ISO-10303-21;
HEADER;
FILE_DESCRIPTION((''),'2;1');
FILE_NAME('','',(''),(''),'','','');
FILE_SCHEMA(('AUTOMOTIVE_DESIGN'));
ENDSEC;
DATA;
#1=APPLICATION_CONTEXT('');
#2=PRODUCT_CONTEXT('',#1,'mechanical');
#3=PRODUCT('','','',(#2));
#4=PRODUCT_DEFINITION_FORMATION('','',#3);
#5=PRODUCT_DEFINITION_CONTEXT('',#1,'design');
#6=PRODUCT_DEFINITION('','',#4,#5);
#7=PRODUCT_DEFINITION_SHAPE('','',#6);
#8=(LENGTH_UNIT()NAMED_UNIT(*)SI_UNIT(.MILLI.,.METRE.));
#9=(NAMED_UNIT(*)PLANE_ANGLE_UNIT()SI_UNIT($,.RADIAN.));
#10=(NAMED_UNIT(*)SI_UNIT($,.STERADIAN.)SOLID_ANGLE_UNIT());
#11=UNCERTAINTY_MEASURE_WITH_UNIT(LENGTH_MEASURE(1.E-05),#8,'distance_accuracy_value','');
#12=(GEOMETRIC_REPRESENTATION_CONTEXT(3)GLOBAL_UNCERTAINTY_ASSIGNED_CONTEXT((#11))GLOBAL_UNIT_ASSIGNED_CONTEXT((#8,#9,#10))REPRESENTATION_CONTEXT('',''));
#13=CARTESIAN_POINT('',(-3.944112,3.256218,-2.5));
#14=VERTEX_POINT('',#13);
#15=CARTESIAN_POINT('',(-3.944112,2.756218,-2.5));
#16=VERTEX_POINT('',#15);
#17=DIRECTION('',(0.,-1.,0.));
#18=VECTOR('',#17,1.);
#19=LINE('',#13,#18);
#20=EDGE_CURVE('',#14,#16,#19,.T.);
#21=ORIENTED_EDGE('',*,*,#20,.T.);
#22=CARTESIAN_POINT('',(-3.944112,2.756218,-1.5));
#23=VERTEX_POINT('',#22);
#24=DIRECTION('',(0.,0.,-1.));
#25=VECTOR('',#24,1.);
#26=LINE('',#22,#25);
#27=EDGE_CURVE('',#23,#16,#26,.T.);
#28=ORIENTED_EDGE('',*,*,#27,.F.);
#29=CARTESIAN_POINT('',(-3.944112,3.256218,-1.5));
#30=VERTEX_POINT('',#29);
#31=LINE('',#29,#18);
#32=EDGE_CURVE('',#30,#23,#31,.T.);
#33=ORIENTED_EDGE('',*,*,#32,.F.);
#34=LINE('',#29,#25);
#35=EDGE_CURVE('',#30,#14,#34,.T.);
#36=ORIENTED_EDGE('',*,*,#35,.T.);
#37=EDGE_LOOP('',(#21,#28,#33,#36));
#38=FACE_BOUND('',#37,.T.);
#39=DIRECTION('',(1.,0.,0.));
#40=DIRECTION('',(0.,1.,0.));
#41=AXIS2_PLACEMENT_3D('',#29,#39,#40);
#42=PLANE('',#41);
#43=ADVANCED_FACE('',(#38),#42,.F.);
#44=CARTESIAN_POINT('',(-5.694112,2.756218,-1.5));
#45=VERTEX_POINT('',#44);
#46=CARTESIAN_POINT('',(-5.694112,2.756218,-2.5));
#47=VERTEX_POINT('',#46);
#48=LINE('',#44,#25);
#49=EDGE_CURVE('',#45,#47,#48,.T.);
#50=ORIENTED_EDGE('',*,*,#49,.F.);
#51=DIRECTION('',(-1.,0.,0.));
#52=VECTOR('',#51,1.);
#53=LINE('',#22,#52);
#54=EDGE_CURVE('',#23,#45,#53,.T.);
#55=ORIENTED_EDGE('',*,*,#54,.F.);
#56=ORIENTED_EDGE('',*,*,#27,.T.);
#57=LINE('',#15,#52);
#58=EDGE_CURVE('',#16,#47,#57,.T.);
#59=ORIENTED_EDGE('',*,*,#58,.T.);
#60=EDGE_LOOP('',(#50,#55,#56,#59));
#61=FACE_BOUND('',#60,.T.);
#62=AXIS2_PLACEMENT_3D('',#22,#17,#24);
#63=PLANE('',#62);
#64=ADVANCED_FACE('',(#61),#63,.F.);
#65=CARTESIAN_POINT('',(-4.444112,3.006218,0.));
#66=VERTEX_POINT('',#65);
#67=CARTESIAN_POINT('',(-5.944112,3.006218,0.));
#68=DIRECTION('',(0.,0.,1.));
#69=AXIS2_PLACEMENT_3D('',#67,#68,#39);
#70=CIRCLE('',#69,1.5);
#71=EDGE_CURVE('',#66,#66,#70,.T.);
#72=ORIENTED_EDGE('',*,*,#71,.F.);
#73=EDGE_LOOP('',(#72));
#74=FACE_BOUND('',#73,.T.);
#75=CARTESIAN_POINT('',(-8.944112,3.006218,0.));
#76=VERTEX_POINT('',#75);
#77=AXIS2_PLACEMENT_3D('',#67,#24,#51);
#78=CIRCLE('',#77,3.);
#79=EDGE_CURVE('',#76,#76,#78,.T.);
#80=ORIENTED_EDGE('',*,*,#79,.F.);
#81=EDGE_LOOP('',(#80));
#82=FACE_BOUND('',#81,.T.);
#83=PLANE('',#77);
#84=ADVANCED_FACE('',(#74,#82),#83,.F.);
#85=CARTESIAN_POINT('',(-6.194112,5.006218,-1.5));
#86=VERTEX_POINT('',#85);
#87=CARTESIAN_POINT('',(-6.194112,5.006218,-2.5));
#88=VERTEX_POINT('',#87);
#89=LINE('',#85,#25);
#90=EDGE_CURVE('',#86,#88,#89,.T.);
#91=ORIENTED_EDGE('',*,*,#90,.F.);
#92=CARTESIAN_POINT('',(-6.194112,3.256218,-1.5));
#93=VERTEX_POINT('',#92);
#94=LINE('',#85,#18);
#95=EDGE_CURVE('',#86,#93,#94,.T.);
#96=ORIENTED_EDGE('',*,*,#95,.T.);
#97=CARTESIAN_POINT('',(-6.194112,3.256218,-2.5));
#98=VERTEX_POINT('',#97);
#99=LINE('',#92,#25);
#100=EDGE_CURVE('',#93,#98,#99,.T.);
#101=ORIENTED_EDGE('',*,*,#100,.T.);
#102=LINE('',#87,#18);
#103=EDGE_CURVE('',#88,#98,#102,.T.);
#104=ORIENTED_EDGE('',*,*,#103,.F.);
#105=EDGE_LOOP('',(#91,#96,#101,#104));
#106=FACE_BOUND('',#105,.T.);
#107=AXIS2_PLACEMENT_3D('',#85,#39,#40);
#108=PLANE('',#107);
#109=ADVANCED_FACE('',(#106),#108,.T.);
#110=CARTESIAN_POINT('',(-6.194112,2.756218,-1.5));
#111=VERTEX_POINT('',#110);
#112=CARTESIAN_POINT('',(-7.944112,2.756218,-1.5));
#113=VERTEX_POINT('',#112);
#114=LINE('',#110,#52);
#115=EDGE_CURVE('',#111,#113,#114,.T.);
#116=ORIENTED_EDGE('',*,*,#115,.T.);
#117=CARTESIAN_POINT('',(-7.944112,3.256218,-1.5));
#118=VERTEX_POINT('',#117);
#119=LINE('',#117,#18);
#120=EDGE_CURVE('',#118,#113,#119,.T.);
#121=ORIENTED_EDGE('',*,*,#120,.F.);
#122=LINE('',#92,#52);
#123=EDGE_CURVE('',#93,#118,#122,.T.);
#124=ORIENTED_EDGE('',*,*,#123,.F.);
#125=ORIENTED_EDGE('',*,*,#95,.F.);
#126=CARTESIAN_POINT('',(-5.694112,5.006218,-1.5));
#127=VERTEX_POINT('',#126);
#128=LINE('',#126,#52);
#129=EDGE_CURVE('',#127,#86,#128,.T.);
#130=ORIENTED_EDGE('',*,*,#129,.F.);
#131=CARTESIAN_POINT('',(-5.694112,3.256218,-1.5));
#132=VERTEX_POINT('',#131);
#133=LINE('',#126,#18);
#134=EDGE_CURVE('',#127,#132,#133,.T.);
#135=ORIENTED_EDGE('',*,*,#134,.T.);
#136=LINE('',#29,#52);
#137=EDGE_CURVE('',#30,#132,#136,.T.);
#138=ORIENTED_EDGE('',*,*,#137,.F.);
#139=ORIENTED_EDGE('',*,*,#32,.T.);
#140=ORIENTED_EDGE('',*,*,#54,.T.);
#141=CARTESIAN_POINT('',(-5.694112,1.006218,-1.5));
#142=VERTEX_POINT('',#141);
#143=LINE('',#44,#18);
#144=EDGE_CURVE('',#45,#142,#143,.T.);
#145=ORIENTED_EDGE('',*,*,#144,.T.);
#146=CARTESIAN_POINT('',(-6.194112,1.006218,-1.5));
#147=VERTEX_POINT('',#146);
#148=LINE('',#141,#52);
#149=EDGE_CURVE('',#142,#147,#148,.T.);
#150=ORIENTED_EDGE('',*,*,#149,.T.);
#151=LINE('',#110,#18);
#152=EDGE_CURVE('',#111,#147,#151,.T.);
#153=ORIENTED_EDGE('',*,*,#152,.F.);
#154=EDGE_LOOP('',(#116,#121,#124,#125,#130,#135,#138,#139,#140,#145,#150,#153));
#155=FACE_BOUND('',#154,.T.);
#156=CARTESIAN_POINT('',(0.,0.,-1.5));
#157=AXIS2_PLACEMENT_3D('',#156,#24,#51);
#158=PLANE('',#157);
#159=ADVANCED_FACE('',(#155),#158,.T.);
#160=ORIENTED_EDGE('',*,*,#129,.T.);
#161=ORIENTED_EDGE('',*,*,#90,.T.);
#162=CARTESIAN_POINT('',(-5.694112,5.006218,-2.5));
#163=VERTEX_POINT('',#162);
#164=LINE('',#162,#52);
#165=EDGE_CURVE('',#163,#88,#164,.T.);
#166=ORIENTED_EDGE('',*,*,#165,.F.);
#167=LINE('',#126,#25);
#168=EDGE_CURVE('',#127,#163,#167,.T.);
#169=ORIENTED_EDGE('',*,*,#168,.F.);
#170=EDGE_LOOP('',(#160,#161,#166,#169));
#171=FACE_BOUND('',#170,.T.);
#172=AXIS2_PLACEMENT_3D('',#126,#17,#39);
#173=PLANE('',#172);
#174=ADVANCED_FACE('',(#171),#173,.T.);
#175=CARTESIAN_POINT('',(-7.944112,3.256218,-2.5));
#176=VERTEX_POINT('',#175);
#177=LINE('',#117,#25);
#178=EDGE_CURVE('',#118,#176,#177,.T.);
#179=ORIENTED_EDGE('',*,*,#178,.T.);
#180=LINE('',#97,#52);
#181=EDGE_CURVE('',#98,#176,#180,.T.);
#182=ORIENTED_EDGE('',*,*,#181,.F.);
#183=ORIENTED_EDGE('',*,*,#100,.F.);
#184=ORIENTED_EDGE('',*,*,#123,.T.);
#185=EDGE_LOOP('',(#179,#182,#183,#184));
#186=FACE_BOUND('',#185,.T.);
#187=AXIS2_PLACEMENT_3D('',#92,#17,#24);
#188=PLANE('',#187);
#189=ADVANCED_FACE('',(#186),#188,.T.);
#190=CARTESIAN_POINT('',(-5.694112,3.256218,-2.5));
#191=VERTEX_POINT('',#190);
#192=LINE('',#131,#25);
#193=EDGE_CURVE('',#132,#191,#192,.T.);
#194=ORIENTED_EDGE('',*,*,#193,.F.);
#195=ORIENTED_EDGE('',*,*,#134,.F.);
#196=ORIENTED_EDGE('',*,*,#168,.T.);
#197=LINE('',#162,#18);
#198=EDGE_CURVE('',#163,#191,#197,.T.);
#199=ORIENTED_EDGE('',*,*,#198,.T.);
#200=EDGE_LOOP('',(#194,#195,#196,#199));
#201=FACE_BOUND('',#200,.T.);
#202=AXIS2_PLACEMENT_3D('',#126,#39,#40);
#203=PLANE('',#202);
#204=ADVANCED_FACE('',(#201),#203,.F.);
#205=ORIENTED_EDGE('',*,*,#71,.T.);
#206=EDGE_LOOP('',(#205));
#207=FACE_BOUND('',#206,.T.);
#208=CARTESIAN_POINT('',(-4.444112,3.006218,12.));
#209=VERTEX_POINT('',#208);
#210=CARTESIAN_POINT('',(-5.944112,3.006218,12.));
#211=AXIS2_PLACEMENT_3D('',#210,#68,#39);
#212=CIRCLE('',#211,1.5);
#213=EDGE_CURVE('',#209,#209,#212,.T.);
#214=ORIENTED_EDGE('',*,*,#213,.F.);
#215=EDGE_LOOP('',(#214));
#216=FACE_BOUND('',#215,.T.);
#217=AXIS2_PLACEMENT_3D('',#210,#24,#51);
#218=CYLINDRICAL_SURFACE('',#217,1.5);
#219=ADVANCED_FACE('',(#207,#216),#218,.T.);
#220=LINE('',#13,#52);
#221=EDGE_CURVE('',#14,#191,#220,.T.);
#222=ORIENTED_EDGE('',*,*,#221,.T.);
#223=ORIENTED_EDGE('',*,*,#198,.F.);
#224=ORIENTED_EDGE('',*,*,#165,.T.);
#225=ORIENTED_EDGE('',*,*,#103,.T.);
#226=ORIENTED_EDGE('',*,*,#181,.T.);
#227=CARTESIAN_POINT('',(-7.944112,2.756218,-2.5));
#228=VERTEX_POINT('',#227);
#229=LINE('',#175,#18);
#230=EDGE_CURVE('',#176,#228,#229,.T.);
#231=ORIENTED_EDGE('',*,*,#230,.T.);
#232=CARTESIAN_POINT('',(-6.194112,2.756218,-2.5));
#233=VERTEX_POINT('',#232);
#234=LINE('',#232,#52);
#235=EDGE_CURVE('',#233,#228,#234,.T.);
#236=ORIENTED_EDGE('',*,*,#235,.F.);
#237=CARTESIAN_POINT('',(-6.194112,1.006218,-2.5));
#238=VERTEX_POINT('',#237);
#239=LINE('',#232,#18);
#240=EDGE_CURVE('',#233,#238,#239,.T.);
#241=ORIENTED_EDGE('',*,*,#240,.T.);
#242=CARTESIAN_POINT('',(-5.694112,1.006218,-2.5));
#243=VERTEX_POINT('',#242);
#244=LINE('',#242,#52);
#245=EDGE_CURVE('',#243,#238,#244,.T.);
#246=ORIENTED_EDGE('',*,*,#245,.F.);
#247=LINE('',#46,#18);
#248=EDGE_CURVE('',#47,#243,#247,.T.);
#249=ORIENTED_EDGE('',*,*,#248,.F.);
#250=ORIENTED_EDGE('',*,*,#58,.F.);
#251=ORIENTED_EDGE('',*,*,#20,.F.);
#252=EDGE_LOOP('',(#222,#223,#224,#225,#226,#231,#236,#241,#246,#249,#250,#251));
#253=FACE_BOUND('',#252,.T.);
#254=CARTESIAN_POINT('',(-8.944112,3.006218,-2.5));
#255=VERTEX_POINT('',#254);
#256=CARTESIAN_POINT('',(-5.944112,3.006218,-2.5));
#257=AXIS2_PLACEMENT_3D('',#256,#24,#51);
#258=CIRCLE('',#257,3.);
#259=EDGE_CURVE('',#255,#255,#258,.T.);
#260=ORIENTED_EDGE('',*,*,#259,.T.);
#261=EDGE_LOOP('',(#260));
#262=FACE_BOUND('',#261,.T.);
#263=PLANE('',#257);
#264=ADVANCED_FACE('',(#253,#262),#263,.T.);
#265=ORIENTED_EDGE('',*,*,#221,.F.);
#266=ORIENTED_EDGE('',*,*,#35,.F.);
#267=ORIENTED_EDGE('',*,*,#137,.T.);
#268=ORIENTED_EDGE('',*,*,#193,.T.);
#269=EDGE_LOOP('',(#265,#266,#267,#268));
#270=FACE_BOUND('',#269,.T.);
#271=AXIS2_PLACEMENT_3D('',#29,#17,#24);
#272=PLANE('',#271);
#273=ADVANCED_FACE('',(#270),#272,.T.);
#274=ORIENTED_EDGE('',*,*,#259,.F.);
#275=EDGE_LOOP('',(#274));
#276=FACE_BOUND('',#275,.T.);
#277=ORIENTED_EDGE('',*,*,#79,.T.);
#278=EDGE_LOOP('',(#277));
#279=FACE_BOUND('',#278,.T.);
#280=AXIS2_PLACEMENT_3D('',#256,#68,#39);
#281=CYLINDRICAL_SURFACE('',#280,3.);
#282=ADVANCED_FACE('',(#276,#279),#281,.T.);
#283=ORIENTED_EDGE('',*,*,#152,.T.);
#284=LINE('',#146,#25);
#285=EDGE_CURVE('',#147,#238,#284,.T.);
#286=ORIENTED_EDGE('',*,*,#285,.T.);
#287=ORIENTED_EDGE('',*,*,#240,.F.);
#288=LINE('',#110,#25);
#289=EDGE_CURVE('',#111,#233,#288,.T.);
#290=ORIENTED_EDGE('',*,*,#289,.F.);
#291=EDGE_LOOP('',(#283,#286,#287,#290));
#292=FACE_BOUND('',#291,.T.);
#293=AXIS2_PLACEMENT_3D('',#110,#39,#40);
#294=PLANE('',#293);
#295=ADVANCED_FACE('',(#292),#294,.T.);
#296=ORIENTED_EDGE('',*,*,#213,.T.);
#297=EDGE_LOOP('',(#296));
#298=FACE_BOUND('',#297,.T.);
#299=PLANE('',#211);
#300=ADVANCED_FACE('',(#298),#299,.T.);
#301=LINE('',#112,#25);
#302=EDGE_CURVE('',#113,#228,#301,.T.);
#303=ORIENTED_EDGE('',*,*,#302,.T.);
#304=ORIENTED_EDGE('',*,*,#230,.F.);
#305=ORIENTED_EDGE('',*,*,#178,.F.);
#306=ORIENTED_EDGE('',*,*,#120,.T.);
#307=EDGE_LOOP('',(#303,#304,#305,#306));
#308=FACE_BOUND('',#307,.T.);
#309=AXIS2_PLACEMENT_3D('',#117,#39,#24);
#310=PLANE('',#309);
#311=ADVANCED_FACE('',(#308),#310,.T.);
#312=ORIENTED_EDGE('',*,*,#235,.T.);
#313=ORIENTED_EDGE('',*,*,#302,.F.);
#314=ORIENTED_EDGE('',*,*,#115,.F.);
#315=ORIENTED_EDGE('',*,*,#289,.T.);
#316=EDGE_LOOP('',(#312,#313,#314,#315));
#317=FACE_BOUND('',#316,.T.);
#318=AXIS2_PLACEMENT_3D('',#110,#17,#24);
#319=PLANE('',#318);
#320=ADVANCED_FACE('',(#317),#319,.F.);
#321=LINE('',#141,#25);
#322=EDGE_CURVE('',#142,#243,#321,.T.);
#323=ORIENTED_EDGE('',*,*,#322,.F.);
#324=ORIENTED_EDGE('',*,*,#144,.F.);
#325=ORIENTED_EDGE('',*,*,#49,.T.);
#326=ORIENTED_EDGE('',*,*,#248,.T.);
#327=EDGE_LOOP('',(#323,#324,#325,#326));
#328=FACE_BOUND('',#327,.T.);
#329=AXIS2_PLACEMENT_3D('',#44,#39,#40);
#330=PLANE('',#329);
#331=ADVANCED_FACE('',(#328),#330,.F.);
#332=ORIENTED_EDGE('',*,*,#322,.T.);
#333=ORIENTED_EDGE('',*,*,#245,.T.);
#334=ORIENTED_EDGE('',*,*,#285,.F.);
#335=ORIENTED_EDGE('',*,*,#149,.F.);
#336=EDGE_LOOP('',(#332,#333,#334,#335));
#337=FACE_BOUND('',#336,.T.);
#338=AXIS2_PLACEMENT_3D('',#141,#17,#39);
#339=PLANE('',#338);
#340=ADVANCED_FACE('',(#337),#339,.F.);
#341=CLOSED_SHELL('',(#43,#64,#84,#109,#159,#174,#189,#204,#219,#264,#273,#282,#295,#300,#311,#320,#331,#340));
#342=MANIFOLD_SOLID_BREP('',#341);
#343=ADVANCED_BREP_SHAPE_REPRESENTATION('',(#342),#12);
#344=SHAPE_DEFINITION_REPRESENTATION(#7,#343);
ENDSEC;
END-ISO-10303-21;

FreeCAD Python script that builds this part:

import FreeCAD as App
import Part
import Sketcher
from FreeCAD import Vector


def add_polygon(sketch, points):
    """Adds a closed chain of lines whose ends are joined by coincident constraints."""
    first, n = sketch.GeometryCount, len(points)
    for a, b in zip(points, points[1:] + points[:1]):
        sketch.addGeometry(Part.LineSegment(App.Vector(*a, 0), App.Vector(*b, 0)), False)
    for i in range(n):
        sketch.addConstraint(Sketcher.Constraint("Coincident", first + i, 2, first + (i + 1) % n, 1))

doc = App.newDocument("Part")
body = doc.addObject("PartDesign::Body", "Body")

# Sketch on XY plane
sketch1 = body.newObject("Sketcher::SketchObject", "Sketch")
sketch1.AttachmentSupport = (doc.getObject("XY_Plane"), [""])
sketch1.MapMode = "FlatFace"
sketch1.addGeometry(Part.Circle(Vector(-5.944112, 3.006218, 0), Vector(0, 0, 1), 1.5), False)
sketch1.addConstraint([
    Sketcher.Constraint("Diameter", 0, 3.0),
    Sketcher.Constraint("DistanceX", 0, 3, -1, 1, 5.944112),
    Sketcher.Constraint("DistanceY", -1, 1, 0, 3, 3.006218),
])
pad1 = body.newObject("PartDesign::Pad", "Pad")
pad1.Profile = sketch1
pad1.Length = 12

# Sketch on XY plane
sketch2 = body.newObject("Sketcher::SketchObject", "Sketch001")
sketch2.AttachmentSupport = (doc.getObject("XY_Plane"), [""])
sketch2.MapMode = "FlatFace"
sketch2.addGeometry(Part.Circle(Vector(-5.944112, 3.006218, 0), Vector(0, 0, 1), 3), False)
sketch2.addConstraint([
    Sketcher.Constraint("Diameter", 0, 6.0),
    Sketcher.Constraint("DistanceX", 0, 3, -1, 1, 5.944112),
    Sketcher.Constraint("DistanceY", -1, 1, 0, 3, 3.006218),
])
pad2 = body.newObject("PartDesign::Pad", "Pad001")
pad2.Profile = sketch2
pad2.Length = 2.5
pad2.Reversed = True

# Sketch on XY plane
sketch3 = body.newObject("Sketcher::SketchObject", "Sketch002")
sketch3.AttachmentSupport = (doc.getObject("XY_Plane"), [""])
sketch3.MapMode = "FlatFace"
sketch3.AttachmentOffset = App.Placement(Vector(0, 0, -2.5), App.Rotation())
add_polygon(sketch3, [(-5.694112, 3.256218), (-3.944112, 3.256218), (-3.944112, 2.756218), (-5.694112, 2.756218), (-5.694112, 1.006218), (-6.194112, 1.006218), (-6.194112, 2.756218), (-7.944112, 2.756218), (-7.944112, 3.256218), (-6.194112, 3.256218), (-6.194112, 5.006218), (-5.694112, 5.006218)])  # lines 0-11
sketch3.addConstraint([
    Sketcher.Constraint("Horizontal", 0),
    Sketcher.Constraint("Vertical", 1),
    Sketcher.Constraint("Horizontal", 2),
    Sketcher.Constraint("Vertical", 3),
    Sketcher.Constraint("Horizontal", 4),
    Sketcher.Constraint("Vertical", 5),
    Sketcher.Constraint("Horizontal", 6),
    Sketcher.Constraint("Vertical", 7),
    Sketcher.Constraint("Horizontal", 8),
    Sketcher.Constraint("Vertical", 9),
    Sketcher.Constraint("Horizontal", 10),
    Sketcher.Constraint("Vertical", 11),
    Sketcher.Constraint("Horizontal", 2, 2, 5, 2),
    Sketcher.Constraint("Horizontal", 0, 2, 7, 2),
    Sketcher.Constraint("Vertical", 5, 2, 8, 2),
    Sketcher.Constraint("Vertical", 3, 2, 10, 2),
    Sketcher.Constraint("Equal", 2, 6),
    Sketcher.Constraint("Equal", 10, 1),
    Sketcher.Constraint("Equal", 8, 3),
    Sketcher.Constraint("Equal", 5, 9),
    Sketcher.Constraint("DistanceX", 4, 2, 4, 1, 0.5),
    Sketcher.Constraint("DistanceX", 6, 2, 1, 2, 4.0),
    Sketcher.Constraint("DistanceX", 0, 2, -1, 1, 3.944112),
    Sketcher.Constraint("DistanceY", -1, 1, 0, 2, 3.256218),
])
pocket1 = body.newObject("PartDesign::Pocket", "Pocket")
pocket1.Profile = sketch3
pocket1.Length = 1
pocket1.Reversed = True

doc.recompute()
